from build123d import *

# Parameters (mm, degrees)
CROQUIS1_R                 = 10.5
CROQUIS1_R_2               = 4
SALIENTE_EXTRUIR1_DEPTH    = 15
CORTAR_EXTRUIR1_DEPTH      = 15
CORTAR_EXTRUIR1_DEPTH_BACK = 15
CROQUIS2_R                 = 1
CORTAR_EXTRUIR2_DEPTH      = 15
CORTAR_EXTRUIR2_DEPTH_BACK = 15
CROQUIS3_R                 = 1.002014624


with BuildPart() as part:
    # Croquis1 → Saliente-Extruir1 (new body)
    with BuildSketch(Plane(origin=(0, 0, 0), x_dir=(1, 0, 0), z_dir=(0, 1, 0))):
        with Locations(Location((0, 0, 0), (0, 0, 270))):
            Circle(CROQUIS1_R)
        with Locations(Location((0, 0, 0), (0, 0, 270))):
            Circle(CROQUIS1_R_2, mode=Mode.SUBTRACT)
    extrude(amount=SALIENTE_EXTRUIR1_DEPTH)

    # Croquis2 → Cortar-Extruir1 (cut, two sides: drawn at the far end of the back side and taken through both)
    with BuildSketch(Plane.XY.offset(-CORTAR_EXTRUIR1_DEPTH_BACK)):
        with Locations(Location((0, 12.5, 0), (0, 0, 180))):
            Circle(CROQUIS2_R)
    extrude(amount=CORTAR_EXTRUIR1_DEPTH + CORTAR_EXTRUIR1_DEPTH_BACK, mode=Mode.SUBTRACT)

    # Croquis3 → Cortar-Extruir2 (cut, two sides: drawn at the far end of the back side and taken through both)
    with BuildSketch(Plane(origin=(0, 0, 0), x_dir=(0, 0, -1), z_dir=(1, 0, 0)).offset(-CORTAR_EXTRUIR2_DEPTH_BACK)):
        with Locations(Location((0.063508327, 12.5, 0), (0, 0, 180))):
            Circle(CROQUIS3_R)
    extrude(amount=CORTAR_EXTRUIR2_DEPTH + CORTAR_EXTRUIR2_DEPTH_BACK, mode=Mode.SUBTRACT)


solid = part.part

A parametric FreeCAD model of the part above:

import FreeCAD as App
import Part
import Sketcher

V = App.Vector
Q = App.Units.Quantity

doc = App.newDocument("Part")
body = doc.addObject("PartDesign::Body", "Body")

# Sketch on XZ plane
sketch1 = doc.addObject("Sketcher::SketchObject", "Sketch")
body.addObject(sketch1)
sketch1.AttachmentSupport = (doc.XZ_Plane, [""])
sketch1.MapMode = "FlatFace"
sketch1.addGeometry(Part.Circle(V(0, 0, 0), V(0, 0, 1), 10.5), False)
sketch1.addGeometry(Part.Circle(V(0, 0, 0), V(0, 0, 1), 4), False)
sketch1.addConstraint(Sketcher.Constraint("Coincident", 0, 3, -1, 1))
sketch1.addConstraint(Sketcher.Constraint("Coincident", 1, 3, -1, 1))
sketch1.addConstraint(Sketcher.Constraint("Diameter", 0, Q("21 mm")))
sketch1.addConstraint(Sketcher.Constraint("Diameter", 1, Q("8 mm")))
pad1 = doc.addObject("PartDesign::Pad", "Pad")
body.addObject(pad1)
pad1.Profile = sketch1
pad1.Length = 15
pad1.Reversed = True

# Sketch on XY plane
sketch2 = doc.addObject("Sketcher::SketchObject", "Sketch001")
body.addObject(sketch2)
sketch2.AttachmentSupport = (doc.XY_Plane, [""])
sketch2.MapMode = "FlatFace"
sketch2.addGeometry(Part.Circle(V(0, 12.5, 0), V(0, 0, 1), 1), False)
sketch2.addConstraint(Sketcher.Constraint("PointOnObject", 0, 3, -2))
sketch2.addConstraint(Sketcher.Constraint("Diameter", 0, Q("2 mm")))
sketch2.addConstraint(Sketcher.Constraint("DistanceY", -1, 1, 0, 3, Q("12.5 mm")))
pocket1 = doc.addObject("PartDesign::Pocket", "Pocket")
body.addObject(pocket1)
pocket1.Profile = sketch2
pocket1.Type = "ThroughAll"
pocket1.Midplane = True

# Sketch on YZ plane
sketch3 = doc.addObject("Sketcher::SketchObject", "Sketch002")
body.addObject(sketch3)
sketch3.AttachmentSupport = (doc.YZ_Plane, [""])
sketch3.MapMode = "FlatFace"
sketch3.addGeometry(Part.Circle(V(12.5, -0.063508, 0), V(0, 0, 1), 1.002015), False)
sketch3.addConstraint(Sketcher.Constraint("DistanceX", -1, 1, 0, 3, Q("12.5 mm")))
sketch3.addConstraint(Sketcher.Constraint("Diameter", 0, Q("2.004029 mm")))
sketch3.addConstraint(Sketcher.Constraint("DistanceY", 0, 3, -1, 1, Q("0.063508 mm")))
pocket2 = doc.addObject("PartDesign::Pocket", "Pocket001")
body.addObject(pocket2)
pocket2.Profile = sketch3
pocket2.Type = "ThroughAll"
pocket2.Midplane = True

doc.recompute()
